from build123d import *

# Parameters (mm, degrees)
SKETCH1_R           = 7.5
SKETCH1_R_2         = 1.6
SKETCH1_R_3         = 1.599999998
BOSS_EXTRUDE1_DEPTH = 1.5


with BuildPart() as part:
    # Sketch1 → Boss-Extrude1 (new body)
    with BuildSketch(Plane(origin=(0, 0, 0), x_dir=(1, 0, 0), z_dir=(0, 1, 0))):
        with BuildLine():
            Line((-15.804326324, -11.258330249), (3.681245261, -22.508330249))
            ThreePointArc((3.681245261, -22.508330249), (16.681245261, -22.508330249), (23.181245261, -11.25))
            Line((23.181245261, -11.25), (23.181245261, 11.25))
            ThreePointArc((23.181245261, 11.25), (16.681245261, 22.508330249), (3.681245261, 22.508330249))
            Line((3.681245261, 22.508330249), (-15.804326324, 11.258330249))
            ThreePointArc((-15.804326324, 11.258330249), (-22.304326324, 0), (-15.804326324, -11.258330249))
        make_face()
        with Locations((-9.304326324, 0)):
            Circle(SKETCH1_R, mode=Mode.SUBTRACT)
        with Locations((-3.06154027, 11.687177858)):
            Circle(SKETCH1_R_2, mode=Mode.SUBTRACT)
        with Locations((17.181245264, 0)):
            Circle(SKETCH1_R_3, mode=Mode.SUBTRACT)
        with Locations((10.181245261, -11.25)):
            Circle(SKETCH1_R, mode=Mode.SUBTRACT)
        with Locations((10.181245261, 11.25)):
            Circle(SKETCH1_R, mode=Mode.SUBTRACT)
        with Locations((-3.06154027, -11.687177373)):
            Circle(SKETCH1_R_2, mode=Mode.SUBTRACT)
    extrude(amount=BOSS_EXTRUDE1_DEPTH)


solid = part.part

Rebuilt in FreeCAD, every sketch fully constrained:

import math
import FreeCAD as App
import Part
import Sketcher
from FreeCAD import Vector
Q = App.Units.Quantity

doc = App.newDocument("Part")
body = doc.addObject("PartDesign::Body", "Body")

sketch1 = doc.addObject("Sketcher::SketchObject", "Sketch")
body.addObject(sketch1)
sketch1.AttachmentSupport = (doc.XZ_Plane, [""])
sketch1.MapMode = "FlatFace"
sketch1.addGeometry([
    Part.LineSegment(Vector(-15.8, 11.3, 0), Vector(3.7, 22.5, 0)),
    Part.ArcOfCircle(Part.Circle(Vector(10.2, 11.2, 0), Vector(0, 0, 1), 13), math.radians(0), math.radians(120)),
    Part.LineSegment(Vector(23.2, 11.2, 0), Vector(23.2, -11.2, 0)),
    Part.ArcOfCircle(Part.Circle(Vector(10.2, -11.2, 0), Vector(0, 0, 1), 13), math.radians(-120), math.radians(0)),
    Part.LineSegment(Vector(3.7, -22.5, 0), Vector(-15.8, -11.3, 0)),
    Part.ArcOfCircle(Part.Circle(Vector(-9.3, 0, 0), Vector(0, 0, 1), 13), math.radians(120), math.radians(240)),
    Part.Circle(Vector(-3.1, 11.7, 0), Vector(0, 0, 1), 1.6),
    Part.Circle(Vector(10.2, 11.2, 0), Vector(0, 0, 1), 7.5),
    Part.Circle(Vector(-9.3, 0, 0), Vector(0, 0, 1), 7.5),
    Part.Circle(Vector(-3.1, -11.7, 0), Vector(0, 0, 1), 1.6),
    Part.Circle(Vector(17.2, 0, 0), Vector(0, 0, 1), 1.6),
    Part.Circle(Vector(10.2, -11.2, 0), Vector(0, 0, 1), 7.5),
], False)
sketch1.addConstraint([
    Sketcher.Constraint("Tangent", 0, 2, 1, 2),
    Sketcher.Constraint("Tangent", 1, 1, 2, 1),
    Sketcher.Constraint("Tangent", 2, 2, 3, 2),
    Sketcher.Constraint("Tangent", 3, 1, 4, 1),
    Sketcher.Constraint("Tangent", 4, 2, 5, 2),
    Sketcher.Constraint("Tangent", 5, 1, 0, 1),
    Sketcher.Constraint("Vertical", 2),
    Sketcher.Constraint("Coincident", 7, 3, 1, 3),
    Sketcher.Constraint("Coincident", 8, 3, 5, 3),
    Sketcher.Constraint("Coincident", 11, 3, 3, 3),
    Sketcher.Constraint("Equal", 1, 3),
    Sketcher.Constraint("Equal", 3, 5),
    Sketcher.Constraint("Equal", 7, 8),
    Sketcher.Constraint("Equal", 6, 9),
    Sketcher.Constraint("Equal", 9, 10),
    Sketcher.Constraint("Equal", 8, 11),
    Sketcher.Constraint("Symmetric", 6, 3, 9, 3, -1),
    Sketcher.Constraint("Symmetric", 0, 2, 3, 1, -1),
    Sketcher.Constraint("PointOnObject", 10, 3, -1),
    Sketcher.Constraint("Diameter", 7, Q("15 mm")),
    Sketcher.Constraint("Radius", 1, Q("13 mm")),
    Sketcher.Constraint("Diameter", 6, Q("3.2 mm")),
    Sketcher.Constraint("Angle", 0, Q("30 deg")),
    Sketcher.Constraint("DistanceY", 2, 2, 2, 1, Q("22.5 mm")),
    Sketcher.Constraint("DistanceX", 1, 3, 10, 3, Q("7 mm")),
    Sketcher.Constraint("DistanceX", 6, 3, -1, 1, Q("3.06154 mm")),
    Sketcher.Constraint("DistanceX", -1, 1, 1, 3, Q("10.181245 mm")),
    Sketcher.Constraint("DistanceY", -1, 1, 6, 3, Q("11.687177 mm")),
])
pad1 = doc.addObject("PartDesign::Pad", "Pad")
body.addObject(pad1)
pad1.Profile = sketch1
pad1.Length = 1.5
pad1.Reversed = True

doc.recompute()
